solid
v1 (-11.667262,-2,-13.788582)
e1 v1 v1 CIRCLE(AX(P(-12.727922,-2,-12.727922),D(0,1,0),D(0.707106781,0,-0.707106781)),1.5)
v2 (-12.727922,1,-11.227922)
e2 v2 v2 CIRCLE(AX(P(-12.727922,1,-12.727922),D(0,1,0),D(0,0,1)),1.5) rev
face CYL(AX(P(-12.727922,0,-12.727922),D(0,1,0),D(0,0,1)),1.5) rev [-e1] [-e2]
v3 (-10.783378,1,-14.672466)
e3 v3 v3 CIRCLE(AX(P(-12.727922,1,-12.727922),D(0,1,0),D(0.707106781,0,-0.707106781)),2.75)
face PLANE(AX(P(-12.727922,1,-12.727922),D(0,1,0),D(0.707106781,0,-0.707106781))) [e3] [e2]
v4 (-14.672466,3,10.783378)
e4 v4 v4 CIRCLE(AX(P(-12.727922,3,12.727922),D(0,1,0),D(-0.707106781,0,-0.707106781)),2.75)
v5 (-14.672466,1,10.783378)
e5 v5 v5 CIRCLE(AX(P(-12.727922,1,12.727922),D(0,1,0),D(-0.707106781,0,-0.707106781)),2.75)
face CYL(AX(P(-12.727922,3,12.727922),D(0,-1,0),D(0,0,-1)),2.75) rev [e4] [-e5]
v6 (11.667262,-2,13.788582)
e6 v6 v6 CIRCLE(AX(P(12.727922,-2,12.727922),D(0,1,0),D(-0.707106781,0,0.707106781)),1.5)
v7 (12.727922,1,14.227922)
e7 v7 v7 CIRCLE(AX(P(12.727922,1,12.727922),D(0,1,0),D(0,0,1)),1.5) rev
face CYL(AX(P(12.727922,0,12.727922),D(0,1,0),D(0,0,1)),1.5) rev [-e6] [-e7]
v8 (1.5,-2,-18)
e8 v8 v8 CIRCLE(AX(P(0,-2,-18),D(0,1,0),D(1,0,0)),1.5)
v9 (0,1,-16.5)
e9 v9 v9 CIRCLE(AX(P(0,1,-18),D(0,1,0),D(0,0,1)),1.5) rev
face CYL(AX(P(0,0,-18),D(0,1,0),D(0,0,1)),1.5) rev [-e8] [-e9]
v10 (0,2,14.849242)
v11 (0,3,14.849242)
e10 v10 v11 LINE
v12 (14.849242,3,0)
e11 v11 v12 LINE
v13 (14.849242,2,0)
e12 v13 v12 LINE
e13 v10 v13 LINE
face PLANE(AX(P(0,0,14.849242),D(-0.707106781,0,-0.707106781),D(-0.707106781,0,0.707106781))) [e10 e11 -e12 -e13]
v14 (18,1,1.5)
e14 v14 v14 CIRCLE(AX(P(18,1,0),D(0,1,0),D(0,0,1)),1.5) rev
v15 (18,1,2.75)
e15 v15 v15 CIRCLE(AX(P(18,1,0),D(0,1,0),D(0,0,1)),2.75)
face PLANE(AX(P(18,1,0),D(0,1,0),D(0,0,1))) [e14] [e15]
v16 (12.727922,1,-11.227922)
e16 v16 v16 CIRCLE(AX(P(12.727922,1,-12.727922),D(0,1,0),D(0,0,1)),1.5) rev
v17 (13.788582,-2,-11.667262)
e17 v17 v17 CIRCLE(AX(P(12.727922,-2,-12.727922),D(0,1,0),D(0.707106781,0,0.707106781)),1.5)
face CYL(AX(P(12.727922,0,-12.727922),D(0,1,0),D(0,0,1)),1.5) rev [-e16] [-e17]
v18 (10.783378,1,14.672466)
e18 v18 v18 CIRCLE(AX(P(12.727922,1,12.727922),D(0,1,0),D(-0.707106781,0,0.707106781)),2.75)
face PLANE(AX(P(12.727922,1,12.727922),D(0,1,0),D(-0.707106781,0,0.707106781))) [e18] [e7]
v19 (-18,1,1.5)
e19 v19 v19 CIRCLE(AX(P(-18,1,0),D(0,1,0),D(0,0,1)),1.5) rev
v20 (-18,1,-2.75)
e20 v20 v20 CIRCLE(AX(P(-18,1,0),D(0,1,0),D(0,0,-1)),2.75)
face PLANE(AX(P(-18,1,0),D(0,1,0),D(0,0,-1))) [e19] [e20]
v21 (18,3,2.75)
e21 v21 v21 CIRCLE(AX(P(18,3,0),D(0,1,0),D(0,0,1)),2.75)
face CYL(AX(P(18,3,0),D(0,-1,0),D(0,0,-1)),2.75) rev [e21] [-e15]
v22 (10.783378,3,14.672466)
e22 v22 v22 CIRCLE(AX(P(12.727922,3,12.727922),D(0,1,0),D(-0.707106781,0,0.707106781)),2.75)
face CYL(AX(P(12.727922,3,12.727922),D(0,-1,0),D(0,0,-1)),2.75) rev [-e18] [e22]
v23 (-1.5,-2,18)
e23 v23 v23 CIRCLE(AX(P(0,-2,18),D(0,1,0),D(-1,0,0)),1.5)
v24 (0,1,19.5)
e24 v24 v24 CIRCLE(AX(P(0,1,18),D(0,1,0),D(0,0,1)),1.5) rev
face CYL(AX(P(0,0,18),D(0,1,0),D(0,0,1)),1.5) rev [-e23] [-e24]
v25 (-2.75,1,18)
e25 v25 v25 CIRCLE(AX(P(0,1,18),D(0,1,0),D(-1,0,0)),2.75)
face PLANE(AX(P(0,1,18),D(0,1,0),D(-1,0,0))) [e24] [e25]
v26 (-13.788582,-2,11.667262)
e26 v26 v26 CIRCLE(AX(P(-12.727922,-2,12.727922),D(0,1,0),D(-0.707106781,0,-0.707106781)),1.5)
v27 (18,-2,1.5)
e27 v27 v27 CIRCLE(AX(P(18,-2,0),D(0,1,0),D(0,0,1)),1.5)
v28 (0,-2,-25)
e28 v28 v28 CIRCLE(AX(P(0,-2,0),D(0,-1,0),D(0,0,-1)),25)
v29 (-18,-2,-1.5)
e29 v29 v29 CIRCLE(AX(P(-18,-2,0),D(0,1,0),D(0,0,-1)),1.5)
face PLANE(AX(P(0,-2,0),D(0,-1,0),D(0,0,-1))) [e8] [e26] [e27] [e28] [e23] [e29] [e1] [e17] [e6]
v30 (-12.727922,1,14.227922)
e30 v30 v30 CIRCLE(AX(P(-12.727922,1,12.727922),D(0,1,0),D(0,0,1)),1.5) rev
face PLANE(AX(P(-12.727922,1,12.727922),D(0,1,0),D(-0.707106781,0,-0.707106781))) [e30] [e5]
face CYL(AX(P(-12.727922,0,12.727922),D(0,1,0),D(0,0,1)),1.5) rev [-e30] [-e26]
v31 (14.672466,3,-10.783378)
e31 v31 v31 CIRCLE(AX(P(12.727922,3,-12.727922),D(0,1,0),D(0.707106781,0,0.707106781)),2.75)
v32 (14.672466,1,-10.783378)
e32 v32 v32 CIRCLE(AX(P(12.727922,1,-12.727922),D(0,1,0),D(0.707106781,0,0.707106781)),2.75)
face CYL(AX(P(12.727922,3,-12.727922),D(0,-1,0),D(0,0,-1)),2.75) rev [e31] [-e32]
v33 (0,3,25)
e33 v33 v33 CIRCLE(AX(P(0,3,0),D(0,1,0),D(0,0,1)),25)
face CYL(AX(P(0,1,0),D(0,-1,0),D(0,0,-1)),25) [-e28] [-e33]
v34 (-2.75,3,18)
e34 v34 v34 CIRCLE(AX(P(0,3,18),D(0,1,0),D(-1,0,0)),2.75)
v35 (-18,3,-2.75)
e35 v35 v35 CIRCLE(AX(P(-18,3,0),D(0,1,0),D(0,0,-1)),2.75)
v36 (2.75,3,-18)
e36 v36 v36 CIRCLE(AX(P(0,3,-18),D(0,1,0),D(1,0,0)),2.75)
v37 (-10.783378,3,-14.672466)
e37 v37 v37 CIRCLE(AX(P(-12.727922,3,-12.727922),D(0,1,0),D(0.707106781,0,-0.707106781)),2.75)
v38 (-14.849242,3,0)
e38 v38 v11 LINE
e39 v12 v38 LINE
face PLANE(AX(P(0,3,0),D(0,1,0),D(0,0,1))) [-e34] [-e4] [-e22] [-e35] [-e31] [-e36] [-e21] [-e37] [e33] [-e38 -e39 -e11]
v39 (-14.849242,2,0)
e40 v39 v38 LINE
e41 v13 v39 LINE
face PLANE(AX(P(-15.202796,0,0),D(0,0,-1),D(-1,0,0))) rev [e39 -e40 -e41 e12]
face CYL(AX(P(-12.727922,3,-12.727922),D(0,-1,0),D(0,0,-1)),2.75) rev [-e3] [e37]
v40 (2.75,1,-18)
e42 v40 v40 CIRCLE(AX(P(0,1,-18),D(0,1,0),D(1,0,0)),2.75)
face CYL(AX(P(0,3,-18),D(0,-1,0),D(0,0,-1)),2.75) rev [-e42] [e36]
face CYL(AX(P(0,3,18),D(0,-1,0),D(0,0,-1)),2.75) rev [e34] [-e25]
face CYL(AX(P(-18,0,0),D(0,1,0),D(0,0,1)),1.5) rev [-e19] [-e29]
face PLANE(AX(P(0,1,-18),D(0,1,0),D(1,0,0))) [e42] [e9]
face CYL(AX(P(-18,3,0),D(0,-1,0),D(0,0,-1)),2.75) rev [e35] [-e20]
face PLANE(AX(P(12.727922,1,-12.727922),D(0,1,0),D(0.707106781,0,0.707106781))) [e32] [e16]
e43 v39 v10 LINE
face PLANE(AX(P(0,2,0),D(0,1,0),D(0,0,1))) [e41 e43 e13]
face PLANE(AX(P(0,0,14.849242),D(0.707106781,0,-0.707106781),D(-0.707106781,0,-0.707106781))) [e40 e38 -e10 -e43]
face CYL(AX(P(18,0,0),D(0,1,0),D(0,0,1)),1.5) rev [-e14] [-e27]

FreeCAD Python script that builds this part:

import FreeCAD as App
import Part
import Sketcher

V = App.Vector
Q = App.Units.Quantity

doc = App.newDocument("Part")
params = doc.addObject("Spreadsheet::Sheet", "Params")
for row, (alias, value) in enumerate([
    ("sketch1_diameter", "50 mm"),
    ("pad1_length", "1 mm"),
    ("sketch2_diameter", "3 mm"),
    ("pocket1_length", "1 mm"),
    ("sketch3_length", "21.5 mm"),
    ("pocket2_length", "1 mm"),
    ("sketch4_length", "21 mm"),
    ("sketch4_length2", "21.5 mm"),
    ("pad2_length", "1 mm"),
    ("sketch5_diameter", "50 mm"),
    ("pad3_length", "2 mm"),
    ("sketch6_diameter", "3 mm"),
    ("pocket3_length", "2 mm"),
    ("sketch7_diameter", "50 mm"),
    ("sketch7_length", "21 mm"),
    ("pad4_length", "2 mm"),
    ("sketch8_diameter", "5.5 mm"),
    ("pocket4_length", "2 mm"),
    ("sketch9_length", "21 mm"),
    ("pad5_length", "2 mm"),
], start=1):
    params.set(f"A{row}", alias)
    params.set(f"B{row}", "=" + value)
    params.setAlias(f"B{row}", alias)

body = doc.addObject("PartDesign::Body", "Body")

# Sketch on XZ plane
sketch1 = doc.addObject("Sketcher::SketchObject", "Sketch")
body.addObject(sketch1)
sketch1.AttachmentSupport = (doc.XZ_Plane, [""])
sketch1.MapMode = "FlatFace"
sketch1.addGeometry(Part.Circle(V(0, 0, 0), V(0, 0, 1), 25), False)
sketch1.addConstraint(Sketcher.Constraint("Coincident", 0, 3, -1, 1))
sketch1.addConstraint(Sketcher.Constraint("Diameter", 0, Q("50 mm")))
sketch1.setExpression("Constraints[1]", "Params.sketch1_diameter")
pad1 = doc.addObject("PartDesign::Pad", "Pad")
body.addObject(pad1)
pad1.Profile = sketch1
pad1.setExpression("Length", "Params.pad1_length")
pad1.Reversed = True

# Sketch on XZ plane
sketch2 = doc.addObject("Sketcher::SketchObject", "Sketch001")
body.addObject(sketch2)
sketch2.AttachmentSupport = (doc.XZ_Plane, [""])
sketch2.MapMode = "FlatFace"
sketch2.AttachmentOffset = App.Placement(V(0, 0, -1), App.Rotation())
sketch2.addGeometry(Part.Circle(V(18, 0, 0), V(0, 0, 1), 1.5), False)
sketch2.addConstraint(Sketcher.Constraint("PointOnObject", 0, 3, -1))
sketch2.addConstraint(Sketcher.Constraint("Diameter", 0, Q("3 mm")))
sketch2.addConstraint(Sketcher.Constraint("DistanceX", -1, 1, 0, 3, Q("18 mm")))
sketch2.setExpression("Constraints[1]", "Params.sketch2_diameter")
pocket1 = doc.addObject("PartDesign::Pocket", "Pocket")
body.addObject(pocket1)
pocket1.Profile = sketch2
pocket1.setExpression("Length", "Params.pocket1_length")
pocket1.Reversed = True
doc.recompute()

polarpattern = doc.addObject("PartDesign::PolarPattern", "PolarPattern")
body.addObject(polarpattern)
polarpattern.Originals = [pocket1]
polarpattern.Axis = (doc.Y_Axis, [""])
polarpattern.Angle = 360
polarpattern.Occurrences = 8
body.Tip = polarpattern

# Sketch on XZ plane
sketch3 = doc.addObject("Sketcher::SketchObject", "Sketch002")
body.addObject(sketch3)
sketch3.AttachmentSupport = (doc.XZ_Plane, [""])
sketch3.MapMode = "FlatFace"
sketch3.AttachmentOffset = App.Placement(V(0, 0, -1), App.Rotation())
sketch3.addGeometry(Part.LineSegment(V(15, 0, 0), V(-15, 0, 0)), False)
sketch3.addGeometry(Part.LineSegment(V(-15, 0, 0), V(0, 15, 0)), False)
sketch3.addGeometry(Part.LineSegment(V(0, 15, 0), V(15, 0, 0)), False)
sketch3.addConstraint(Sketcher.Constraint("Coincident", 0, 2, 1, 1))
sketch3.addConstraint(Sketcher.Constraint("Coincident", 1, 2, 2, 1))
sketch3.addConstraint(Sketcher.Constraint("Coincident", 2, 2, 0, 1))
sketch3.addConstraint(Sketcher.Constraint("Horizontal", 0))
sketch3.addConstraint(Sketcher.Constraint("Symmetric", 0, 2, 2, 2, -1, 1))
sketch3.addConstraint(Sketcher.Constraint("PointOnObject", 1, 2, -2))
sketch3.addConstraint(Sketcher.Constraint("Perpendicular", 1, 2))
sketch3.addConstraint(Sketcher.Constraint("Distance", 1, Q("21.5 mm")))
sketch3.setExpression("Constraints[7]", "Params.sketch3_length")
pocket2 = doc.addObject("PartDesign::Pocket", "Pocket001")
body.addObject(pocket2)
pocket2.Profile = sketch3
pocket2.setExpression("Length", "Params.pocket2_length")
pocket2.Reversed = True

# Sketch on XZ plane
sketch4 = doc.addObject("Sketcher::SketchObject", "Sketch003")
body.addObject(sketch4)
sketch4.AttachmentSupport = (doc.XZ_Plane, [""])
sketch4.MapMode = "FlatFace"
sketch4.AttachmentOffset = App.Placement(V(0, 0, -1), App.Rotation())
sketch4.addGeometry(Part.LineSegment(V(14.85, 0, 0), V(0, 14.85, 0)), False)
sketch4.addGeometry(Part.LineSegment(V(0, 14.85, 0), V(-14.85, 0, 0)), False)
sketch4.addGeometry(Part.LineSegment(V(-14.85, 0, 0), V(-15.2, 0, 0)), False)
sketch4.addGeometry(Part.LineSegment(V(-15.2, 0, 0), V(0, 15.2, 0)), False)
sketch4.addGeometry(Part.LineSegment(V(0, 15.2, 0), V(15.2, 0, 0)), False)
sketch4.addGeometry(Part.LineSegment(V(15.2, 0, 0), V(14.85, 0, 0)), False)
sketch4.addConstraint(Sketcher.Constraint("Coincident", 0, 2, 1, 1))
sketch4.addConstraint(Sketcher.Constraint("Coincident", 1, 2, 2, 1))
sketch4.addConstraint(Sketcher.Constraint("Coincident", 2, 2, 3, 1))
sketch4.addConstraint(Sketcher.Constraint("Coincident", 3, 2, 4, 1))
sketch4.addConstraint(Sketcher.Constraint("Coincident", 4, 2, 5, 1))
sketch4.addConstraint(Sketcher.Constraint("Coincident", 5, 2, 0, 1))
sketch4.addConstraint(Sketcher.Constraint("Horizontal", 2))
sketch4.addConstraint(Sketcher.Constraint("Horizontal", 5))
sketch4.addConstraint(Sketcher.Constraint("Symmetric", 2, 2, 4, 2, -1, 1))
sketch4.addConstraint(Sketcher.Constraint("Symmetric", 1, 2, 5, 2, -2))
sketch4.addConstraint(Sketcher.Constraint("PointOnObject", 0, 2, -2))
sketch4.addConstraint(Sketcher.Constraint("PointOnObject", 3, 2, -2))
sketch4.addConstraint(Sketcher.Constraint("Perpendicular", 0, 1))
sketch4.addConstraint(Sketcher.Constraint("Parallel", 1, 3))
sketch4.addConstraint(Sketcher.Constraint("Distance", 0, Q("21 mm")))
sketch4.addConstraint(Sketcher.Constraint("Distance", 3, Q("21.5 mm")))
sketch4.setExpression("Constraints[14]", "Params.sketch4_length")
sketch4.setExpression("Constraints[15]", "Params.sketch4_length2")
pad2 = doc.addObject("PartDesign::Pad", "Pad001")
body.addObject(pad2)
pad2.Profile = sketch4
pad2.setExpression("Length", "Params.pad2_length")

# Sketch on XZ plane
sketch5 = doc.addObject("Sketcher::SketchObject", "Sketch004")
body.addObject(sketch5)
sketch5.AttachmentSupport = (doc.XZ_Plane, [""])
sketch5.MapMode = "FlatFace"
sketch5.addGeometry(Part.Circle(V(0, 0, 0), V(0, 0, 1), 25), False)
sketch5.addConstraint(Sketcher.Constraint("Coincident", 0, 3, -1, 1))
sketch5.addConstraint(Sketcher.Constraint("Diameter", 0, Q("50 mm")))
sketch5.setExpression("Constraints[1]", "Params.sketch5_diameter")
pad3 = doc.addObject("PartDesign::Pad", "Pad002")
body.addObject(pad3)
pad3.Profile = sketch5
pad3.setExpression("Length", "Params.pad3_length")

# Sketch on XZ plane
sketch6 = doc.addObject("Sketcher::SketchObject", "Sketch005")
body.addObject(sketch6)
sketch6.AttachmentSupport = (doc.XZ_Plane, [""])
sketch6.MapMode = "FlatFace"
sketch6.addGeometry(Part.Circle(V(18, 0, 0), V(0, 0, 1), 1.5), False)
sketch6.addConstraint(Sketcher.Constraint("PointOnObject", 0, 3, -1))
sketch6.addConstraint(Sketcher.Constraint("Diameter", 0, Q("3 mm")))
sketch6.addConstraint(Sketcher.Constraint("DistanceX", -1, 1, 0, 3, Q("18 mm")))
sketch6.setExpression("Constraints[1]", "Params.sketch6_diameter")
pocket3 = doc.addObject("PartDesign::Pocket", "Pocket002")
body.addObject(pocket3)
pocket3.Profile = sketch6
pocket3.setExpression("Length", "Params.pocket3_length")
pocket3.Reversed = True
doc.recompute()

polarpattern2 = doc.addObject("PartDesign::PolarPattern", "PolarPattern001")
body.addObject(polarpattern2)
polarpattern2.Originals = [pocket3]
polarpattern2.Axis = (doc.Y_Axis, [""])
polarpattern2.Angle = 360
polarpattern2.Occurrences = 8
body.Tip = polarpattern2

# Sketch on XZ plane
sketch7 = doc.addObject("Sketcher::SketchObject", "Sketch006")
body.addObject(sketch7)
sketch7.AttachmentSupport = (doc.XZ_Plane, [""])
sketch7.MapMode = "FlatFace"
sketch7.AttachmentOffset = App.Placement(V(0, 0, -1), App.Rotation())
sketch7.addGeometry(Part.Circle(V(0, 0, 0), V(0, 0, 1), 25), False)
sketch7.addGeometry(Part.LineSegment(V(0, 15, 0), V(-15, 0, 0)), False)
sketch7.addGeometry(Part.LineSegment(V(-15, 0, 0), V(15, 0, 0)), False)
sketch7.addGeometry(Part.LineSegment(V(15, 0, 0), V(0, 15, 0)), False)
sketch7.addConstraint(Sketcher.Constraint("Coincident", 1, 2, 2, 1))
sketch7.addConstraint(Sketcher.Constraint("Coincident", 2, 2, 3, 1))
sketch7.addConstraint(Sketcher.Constraint("Coincident", 3, 2, 1, 1))
sketch7.addConstraint(Sketcher.Constraint("Horizontal", 2))
sketch7.addConstraint(Sketcher.Constraint("Coincident", 0, 3, -1, 1))
sketch7.addConstraint(Sketcher.Constraint("Symmetric", 1, 2, 2, 2, -1, 1))
sketch7.addConstraint(Sketcher.Constraint("PointOnObject", 3, 2, -2))
sketch7.addConstraint(Sketcher.Constraint("Perpendicular", 1, 3))
sketch7.addConstraint(Sketcher.Constraint("Diameter", 0, Q("50 mm")))
sketch7.addConstraint(Sketcher.Constraint("Distance", 1, Q("21 mm")))
sketch7.setExpression("Constraints[8]", "Params.sketch7_diameter")
sketch7.setExpression("Constraints[9]", "Params.sketch7_length")
pad4 = doc.addObject("PartDesign::Pad", "Pad003")
body.addObject(pad4)
pad4.Profile = sketch7
pad4.setExpression("Length", "Params.pad4_length")
pad4.Reversed = True

# Sketch on XZ plane
sketch8 = doc.addObject("Sketcher::SketchObject", "Sketch007")
body.addObject(sketch8)
sketch8.AttachmentSupport = (doc.XZ_Plane, [""])
sketch8.MapMode = "FlatFace"
sketch8.AttachmentOffset = App.Placement(V(0, 0, -1), App.Rotation())
sketch8.addGeometry(Part.Circle(V(18, 0, 0), V(0, 0, 1), 2.8), False)
sketch8.addConstraint(Sketcher.Constraint("PointOnObject", 0, 3, -1))
sketch8.addConstraint(Sketcher.Constraint("Diameter", 0, Q("5.5 mm")))
sketch8.addConstraint(Sketcher.Constraint("DistanceX", -1, 1, 0, 3, Q("18 mm")))
sketch8.setExpression("Constraints[1]", "Params.sketch8_diameter")
pocket4 = doc.addObject("PartDesign::Pocket", "Pocket003")
body.addObject(pocket4)
pocket4.Profile = sketch8
pocket4.setExpression("Length", "Params.pocket4_length")
doc.recompute()

polarpattern3 = doc.addObject("PartDesign::PolarPattern", "PolarPattern002")
body.addObject(polarpattern3)
polarpattern3.Originals = [pocket4]
polarpattern3.Axis = (doc.Y_Axis, [""])
polarpattern3.Angle = 360
polarpattern3.Occurrences = 8
body.Tip = polarpattern3

# Sketch on XZ plane
sketch9 = doc.addObject("Sketcher::SketchObject", "Sketch008")
body.addObject(sketch9)
sketch9.AttachmentSupport = (doc.XZ_Plane, [""])
sketch9.MapMode = "FlatFace"
sketch9.addGeometry(Part.LineSegment(V(15, 0, 0), V(-15, 0, 0)), False)
sketch9.addGeometry(Part.LineSegment(V(-15, 0, 0), V(0, 15, 0)), False)
sketch9.addGeometry(Part.LineSegment(V(0, 15, 0), V(15, 0, 0)), False)
sketch9.addConstraint(Sketcher.Constraint("Coincident", 0, 2, 1, 1))
sketch9.addConstraint(Sketcher.Constraint("Coincident", 1, 2, 2, 1))
sketch9.addConstraint(Sketcher.Constraint("Coincident", 2, 2, 0, 1))
sketch9.addConstraint(Sketcher.Constraint("Horizontal", 0))
sketch9.addConstraint(Sketcher.Constraint("Symmetric", 0, 2, 2, 2, -1, 1))
sketch9.addConstraint(Sketcher.Constraint("PointOnObject", 1, 2, -2))
sketch9.addConstraint(Sketcher.Constraint("Perpendicular", 1, 2))
sketch9.addConstraint(Sketcher.Constraint("Distance", 1, Q("21 mm")))
sketch9.setExpression("Constraints[7]", "Params.sketch9_length")
pad5 = doc.addObject("PartDesign::Pad", "Pad004")
body.addObject(pad5)
pad5.Profile = sketch9
pad5.setExpression("Length", "Params.pad5_length")
pad5.Reversed = True

doc.recompute()
